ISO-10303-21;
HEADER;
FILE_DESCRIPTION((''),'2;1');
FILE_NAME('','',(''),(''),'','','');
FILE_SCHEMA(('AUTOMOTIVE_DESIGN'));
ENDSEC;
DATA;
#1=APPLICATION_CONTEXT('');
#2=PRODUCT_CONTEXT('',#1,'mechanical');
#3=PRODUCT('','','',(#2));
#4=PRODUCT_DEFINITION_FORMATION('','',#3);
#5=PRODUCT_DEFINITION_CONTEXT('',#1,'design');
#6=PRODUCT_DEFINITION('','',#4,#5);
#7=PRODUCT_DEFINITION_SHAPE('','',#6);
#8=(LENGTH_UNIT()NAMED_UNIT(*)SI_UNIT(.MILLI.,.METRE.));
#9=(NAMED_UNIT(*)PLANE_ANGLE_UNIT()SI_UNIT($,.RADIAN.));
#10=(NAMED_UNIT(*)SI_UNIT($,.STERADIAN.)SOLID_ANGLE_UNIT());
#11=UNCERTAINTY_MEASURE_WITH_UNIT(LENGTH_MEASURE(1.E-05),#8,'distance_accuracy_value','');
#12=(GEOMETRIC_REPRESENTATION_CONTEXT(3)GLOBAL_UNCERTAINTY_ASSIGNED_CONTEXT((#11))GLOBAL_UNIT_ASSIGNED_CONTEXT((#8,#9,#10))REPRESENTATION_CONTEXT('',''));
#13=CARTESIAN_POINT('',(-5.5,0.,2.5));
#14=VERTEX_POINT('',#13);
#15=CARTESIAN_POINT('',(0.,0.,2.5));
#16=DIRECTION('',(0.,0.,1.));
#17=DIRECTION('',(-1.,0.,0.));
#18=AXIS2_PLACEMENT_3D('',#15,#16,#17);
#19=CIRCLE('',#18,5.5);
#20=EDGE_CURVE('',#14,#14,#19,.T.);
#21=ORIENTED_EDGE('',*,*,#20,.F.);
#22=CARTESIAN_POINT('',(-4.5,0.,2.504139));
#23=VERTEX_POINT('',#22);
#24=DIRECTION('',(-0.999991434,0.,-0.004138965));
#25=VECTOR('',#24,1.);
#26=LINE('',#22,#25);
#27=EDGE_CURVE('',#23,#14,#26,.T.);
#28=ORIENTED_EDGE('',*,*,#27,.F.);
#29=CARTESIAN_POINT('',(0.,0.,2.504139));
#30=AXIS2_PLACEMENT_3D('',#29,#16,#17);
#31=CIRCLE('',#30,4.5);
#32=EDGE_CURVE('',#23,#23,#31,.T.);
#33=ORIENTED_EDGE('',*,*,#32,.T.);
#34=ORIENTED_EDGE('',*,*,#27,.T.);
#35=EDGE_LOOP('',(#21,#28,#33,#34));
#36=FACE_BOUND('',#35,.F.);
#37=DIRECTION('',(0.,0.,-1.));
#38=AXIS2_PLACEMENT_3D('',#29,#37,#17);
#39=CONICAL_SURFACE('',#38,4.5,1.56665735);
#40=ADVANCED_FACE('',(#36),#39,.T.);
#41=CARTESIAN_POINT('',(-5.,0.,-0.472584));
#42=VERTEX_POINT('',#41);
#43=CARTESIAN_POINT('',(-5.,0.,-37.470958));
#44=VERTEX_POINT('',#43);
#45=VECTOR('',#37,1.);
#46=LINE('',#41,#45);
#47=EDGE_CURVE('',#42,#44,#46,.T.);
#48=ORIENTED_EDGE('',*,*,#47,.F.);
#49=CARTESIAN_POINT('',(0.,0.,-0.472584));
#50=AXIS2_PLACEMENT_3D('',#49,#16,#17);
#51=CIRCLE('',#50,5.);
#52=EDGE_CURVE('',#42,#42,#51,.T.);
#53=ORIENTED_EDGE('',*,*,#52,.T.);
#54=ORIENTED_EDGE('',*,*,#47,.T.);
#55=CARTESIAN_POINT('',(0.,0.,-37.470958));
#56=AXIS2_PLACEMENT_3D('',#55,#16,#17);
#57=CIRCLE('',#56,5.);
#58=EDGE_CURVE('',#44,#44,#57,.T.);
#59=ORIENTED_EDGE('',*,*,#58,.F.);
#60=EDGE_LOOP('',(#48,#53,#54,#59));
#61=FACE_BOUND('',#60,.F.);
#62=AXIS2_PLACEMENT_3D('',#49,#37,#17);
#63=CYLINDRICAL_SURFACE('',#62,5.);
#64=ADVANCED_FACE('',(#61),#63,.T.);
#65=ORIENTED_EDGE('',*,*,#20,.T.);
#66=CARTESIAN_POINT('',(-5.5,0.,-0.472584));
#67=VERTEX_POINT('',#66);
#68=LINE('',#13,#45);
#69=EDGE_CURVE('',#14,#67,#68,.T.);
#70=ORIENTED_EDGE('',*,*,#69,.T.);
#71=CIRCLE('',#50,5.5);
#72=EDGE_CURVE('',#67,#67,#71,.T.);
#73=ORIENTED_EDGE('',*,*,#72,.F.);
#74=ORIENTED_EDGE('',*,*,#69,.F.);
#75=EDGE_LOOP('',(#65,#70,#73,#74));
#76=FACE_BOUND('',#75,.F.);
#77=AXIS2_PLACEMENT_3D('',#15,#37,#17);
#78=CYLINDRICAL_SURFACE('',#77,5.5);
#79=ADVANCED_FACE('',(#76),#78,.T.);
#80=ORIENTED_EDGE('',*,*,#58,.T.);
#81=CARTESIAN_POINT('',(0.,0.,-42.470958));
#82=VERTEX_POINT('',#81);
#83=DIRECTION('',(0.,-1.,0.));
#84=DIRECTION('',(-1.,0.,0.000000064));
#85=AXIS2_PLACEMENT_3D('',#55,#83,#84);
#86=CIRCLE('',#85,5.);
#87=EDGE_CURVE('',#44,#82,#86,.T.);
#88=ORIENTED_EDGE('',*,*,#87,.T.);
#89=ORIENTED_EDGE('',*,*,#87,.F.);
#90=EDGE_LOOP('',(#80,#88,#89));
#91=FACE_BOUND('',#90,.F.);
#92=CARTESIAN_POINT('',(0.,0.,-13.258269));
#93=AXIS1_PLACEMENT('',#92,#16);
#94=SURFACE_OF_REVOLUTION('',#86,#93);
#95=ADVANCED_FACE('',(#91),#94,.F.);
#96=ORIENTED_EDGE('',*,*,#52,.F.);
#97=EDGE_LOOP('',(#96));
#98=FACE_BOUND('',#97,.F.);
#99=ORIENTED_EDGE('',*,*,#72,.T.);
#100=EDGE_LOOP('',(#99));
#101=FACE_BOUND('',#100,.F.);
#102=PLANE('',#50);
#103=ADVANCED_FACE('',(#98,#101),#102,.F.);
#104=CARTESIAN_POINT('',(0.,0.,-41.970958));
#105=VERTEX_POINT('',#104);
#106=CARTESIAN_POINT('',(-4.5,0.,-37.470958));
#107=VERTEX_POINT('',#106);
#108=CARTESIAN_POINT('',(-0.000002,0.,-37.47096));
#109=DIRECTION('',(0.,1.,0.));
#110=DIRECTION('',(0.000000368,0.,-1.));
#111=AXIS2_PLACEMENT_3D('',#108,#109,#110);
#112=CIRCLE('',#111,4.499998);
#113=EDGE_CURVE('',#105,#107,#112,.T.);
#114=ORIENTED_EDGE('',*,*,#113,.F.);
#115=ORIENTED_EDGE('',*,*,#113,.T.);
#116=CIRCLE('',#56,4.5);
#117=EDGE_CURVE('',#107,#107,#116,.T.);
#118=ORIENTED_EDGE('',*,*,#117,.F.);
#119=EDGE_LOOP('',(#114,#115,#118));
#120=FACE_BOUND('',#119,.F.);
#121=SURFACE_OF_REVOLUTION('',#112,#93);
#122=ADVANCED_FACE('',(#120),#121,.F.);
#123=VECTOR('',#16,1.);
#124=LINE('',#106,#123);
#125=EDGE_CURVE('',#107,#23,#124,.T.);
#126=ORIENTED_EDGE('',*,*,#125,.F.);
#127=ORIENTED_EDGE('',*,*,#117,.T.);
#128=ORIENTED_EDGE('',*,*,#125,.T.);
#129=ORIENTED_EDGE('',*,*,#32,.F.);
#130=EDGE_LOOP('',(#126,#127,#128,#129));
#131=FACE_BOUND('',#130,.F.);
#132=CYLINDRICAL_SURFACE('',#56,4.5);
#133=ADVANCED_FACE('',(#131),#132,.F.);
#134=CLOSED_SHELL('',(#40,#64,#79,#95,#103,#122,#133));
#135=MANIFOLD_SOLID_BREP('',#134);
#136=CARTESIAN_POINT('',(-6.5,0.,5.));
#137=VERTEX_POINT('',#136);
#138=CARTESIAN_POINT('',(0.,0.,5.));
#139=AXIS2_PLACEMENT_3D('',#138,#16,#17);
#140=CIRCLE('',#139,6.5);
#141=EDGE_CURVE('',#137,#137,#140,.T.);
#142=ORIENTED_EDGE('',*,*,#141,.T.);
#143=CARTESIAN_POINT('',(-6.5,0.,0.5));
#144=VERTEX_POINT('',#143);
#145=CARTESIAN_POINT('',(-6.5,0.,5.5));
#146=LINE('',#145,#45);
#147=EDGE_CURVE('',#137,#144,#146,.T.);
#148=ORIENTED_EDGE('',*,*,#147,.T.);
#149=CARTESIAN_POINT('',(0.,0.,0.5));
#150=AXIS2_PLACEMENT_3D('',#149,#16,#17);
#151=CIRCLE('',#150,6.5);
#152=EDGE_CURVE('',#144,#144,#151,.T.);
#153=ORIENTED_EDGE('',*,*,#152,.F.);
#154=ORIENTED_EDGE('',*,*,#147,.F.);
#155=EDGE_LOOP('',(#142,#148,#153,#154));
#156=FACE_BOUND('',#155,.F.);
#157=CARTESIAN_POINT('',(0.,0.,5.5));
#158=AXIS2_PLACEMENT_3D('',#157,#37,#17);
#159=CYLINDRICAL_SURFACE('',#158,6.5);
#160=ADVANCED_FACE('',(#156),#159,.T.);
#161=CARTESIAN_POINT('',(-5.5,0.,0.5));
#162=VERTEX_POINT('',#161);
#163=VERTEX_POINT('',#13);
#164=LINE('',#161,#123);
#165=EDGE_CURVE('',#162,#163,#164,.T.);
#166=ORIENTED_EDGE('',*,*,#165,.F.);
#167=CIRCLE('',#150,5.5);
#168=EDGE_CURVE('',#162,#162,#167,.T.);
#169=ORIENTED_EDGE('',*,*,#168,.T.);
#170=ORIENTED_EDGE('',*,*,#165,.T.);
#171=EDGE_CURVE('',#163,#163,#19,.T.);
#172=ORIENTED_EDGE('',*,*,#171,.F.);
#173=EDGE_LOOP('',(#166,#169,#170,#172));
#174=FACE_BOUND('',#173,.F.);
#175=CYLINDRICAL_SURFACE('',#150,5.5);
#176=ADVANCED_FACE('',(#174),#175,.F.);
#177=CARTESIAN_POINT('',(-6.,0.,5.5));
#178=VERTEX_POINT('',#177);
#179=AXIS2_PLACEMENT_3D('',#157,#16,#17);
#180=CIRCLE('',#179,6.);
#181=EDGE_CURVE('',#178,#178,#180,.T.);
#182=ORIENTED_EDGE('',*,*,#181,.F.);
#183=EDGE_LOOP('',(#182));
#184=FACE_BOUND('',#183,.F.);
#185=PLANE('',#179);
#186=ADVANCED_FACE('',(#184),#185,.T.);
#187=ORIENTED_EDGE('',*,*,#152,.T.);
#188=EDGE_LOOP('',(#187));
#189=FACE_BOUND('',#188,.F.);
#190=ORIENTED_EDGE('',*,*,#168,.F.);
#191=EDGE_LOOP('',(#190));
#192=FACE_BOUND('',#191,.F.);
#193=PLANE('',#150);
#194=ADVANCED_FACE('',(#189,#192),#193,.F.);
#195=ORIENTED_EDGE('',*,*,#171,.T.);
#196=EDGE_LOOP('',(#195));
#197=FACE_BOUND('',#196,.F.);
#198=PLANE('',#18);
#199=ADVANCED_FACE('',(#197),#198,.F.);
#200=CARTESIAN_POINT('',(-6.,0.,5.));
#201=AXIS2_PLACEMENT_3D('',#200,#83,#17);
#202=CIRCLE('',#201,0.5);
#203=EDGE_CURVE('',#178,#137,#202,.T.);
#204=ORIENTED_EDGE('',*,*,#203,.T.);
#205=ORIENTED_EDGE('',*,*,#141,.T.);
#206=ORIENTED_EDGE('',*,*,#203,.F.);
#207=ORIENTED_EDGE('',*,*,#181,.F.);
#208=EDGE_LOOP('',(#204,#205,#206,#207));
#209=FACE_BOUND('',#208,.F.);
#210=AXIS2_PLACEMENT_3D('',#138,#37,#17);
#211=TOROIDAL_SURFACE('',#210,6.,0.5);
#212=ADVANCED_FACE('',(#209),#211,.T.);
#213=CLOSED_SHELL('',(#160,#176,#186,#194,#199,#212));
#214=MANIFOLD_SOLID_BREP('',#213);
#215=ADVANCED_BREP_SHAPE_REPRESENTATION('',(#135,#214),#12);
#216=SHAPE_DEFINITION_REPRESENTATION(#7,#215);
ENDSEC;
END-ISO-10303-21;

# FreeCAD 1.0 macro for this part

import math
import FreeCAD as App
import Part
import Sketcher
from FreeCAD import Vector
Q = App.Units.Quantity


def edges_at(feature, points):
    """Names of the edges that pass closest to the given points."""
    edges = feature.Shape.Edges
    near = lambda p: min(range(len(edges)), key=lambda i: edges[i].distToShape(Part.Vertex(*p))[0])
    return sorted({f"Edge{near(p) + 1}" for p in points})

doc = App.newDocument("Part")
params = doc.addObject("Spreadsheet::Sheet", "Params")
for row, (alias, value) in enumerate([
    ("sketch1_radius", "5 mm"),
    ("sketch1_radius2", "4.499998 mm"),
    ("revolution_angle", "360 deg"),
    ("sketch2_width", "1 mm"),
    ("sketch2_height", "3 mm"),
    ("sketch2_height2", "5 mm"),
    ("sketch2_width2", "6.5 mm"),
    ("revolution2_angle", "360 deg"),
    ("fillet_radius", "0.5 mm"),
], start=1):
    params.set(f"A{row}", alias)
    params.set(f"B{row}", "=" + value)
    params.setAlias(f"B{row}", alias)

body = doc.addObject("PartDesign::Body", "Body")

sketch1 = body.newObject("Sketcher::SketchObject", "Sketch")
sketch1.AttachmentSupport = (doc.getObject("XZ_Plane"), [""])
sketch1.MapMode = "FlatFace"
sketch1.addGeometry([
    Part.LineSegment(Vector(-5.5, -0.5, 0), Vector(-5, -0.5, 0)),
    Part.LineSegment(Vector(-5, -0.5, 0), Vector(-5, -37.5, 0)),
    Part.ArcOfCircle(Part.Circle(Vector(0, -37.5, 0), Vector(0, 0, 1), 5), math.radians(180), math.radians(270)),
    Part.LineSegment(Vector(0, -42.5, 0), Vector(0, -42, 0)),
    Part.ArcOfCircle(Part.Circle(Vector(0, -37.5, 0), Vector(0, 0, 1), 4.5), math.radians(180), math.radians(270)),
    Part.LineSegment(Vector(-4.5, -37.5, 0), Vector(-4.5, 2.5, 0)),
    Part.LineSegment(Vector(-4.5, 2.5, 0), Vector(-5.5, 2.5, 0)),
    Part.LineSegment(Vector(-5.5, 2.5, 0), Vector(-5.5, -0.5, 0)),
], False)
sketch1.addConstraint([
    Sketcher.Constraint("Coincident", 0, 2, 1, 1),
    Sketcher.Constraint("Tangent", 1, 2, 2, 1),
    Sketcher.Constraint("Coincident", 2, 2, 3, 1),
    Sketcher.Constraint("Coincident", 3, 2, 4, 2),
    Sketcher.Constraint("Tangent", 4, 1, 5, 1),
    Sketcher.Constraint("Coincident", 5, 2, 6, 1),
    Sketcher.Constraint("Coincident", 6, 2, 7, 1),
    Sketcher.Constraint("Coincident", 7, 2, 0, 1),
    Sketcher.Constraint("Horizontal", 0),
    Sketcher.Constraint("Vertical", 1),
    Sketcher.Constraint("Vertical", 3),
    Sketcher.Constraint("Vertical", 5),
    Sketcher.Constraint("Vertical", 7),
    Sketcher.Constraint("Coincident", 4, 3, 2, 3),
    Sketcher.Constraint("PointOnObject", 2, 3, -2),
    Sketcher.Constraint("PointOnObject", 2, 2, -2),
    Sketcher.Constraint("Equal", 0, 3),
    Sketcher.Constraint("Radius", 2, Q("5 mm")),
    Sketcher.Constraint("Radius", 4, Q("4.499998 mm")),
    Sketcher.Constraint("DistanceY", -1, 1, 6, 2, Q("2.5 mm")),
    Sketcher.Constraint("DistanceY", 4, 3, 5, 2, Q("39.975099 mm")),
    Sketcher.Constraint("DistanceY", 1, 2, 1, 1, Q("36.998374 mm")),
    Sketcher.Constraint("DistanceY", 7, 2, 7, 1, Q("2.972584 mm")),
])
sketch1.setExpression("Constraints[17]", "Params.sketch1_radius")
sketch1.setExpression("Constraints[18]", "Params.sketch1_radius2")
revolution = body.newObject("PartDesign::Revolution", "Revolution")
revolution.Profile = sketch1
revolution.ReferenceAxis = (sketch1, ["V_Axis"])
revolution.setExpression("Angle", "Params.revolution_angle")
body2 = doc.addObject("PartDesign::Body", "Body001")

sketch2 = body2.newObject("Sketcher::SketchObject", "Sketch001")
sketch2.AttachmentSupport = (doc.getObject("XZ_Plane001"), [""])
sketch2.MapMode = "FlatFace"
sketch2.addGeometry([
    Part.LineSegment(Vector(0, 2.5, 0), Vector(0, 5.5, 0)),
    Part.LineSegment(Vector(0, 5.5, 0), Vector(-6.5, 5.5, 0)),
    Part.LineSegment(Vector(-6.5, 5.5, 0), Vector(-6.5, 0.5, 0)),
    Part.LineSegment(Vector(-6.5, 0.5, 0), Vector(-5.5, 0.5, 0)),
    Part.LineSegment(Vector(-5.5, 0.5, 0), Vector(-5.5, 2.5, 0)),
    Part.LineSegment(Vector(-5.5, 2.5, 0), Vector(0, 2.5, 0)),
], False)
sketch2.addConstraint([
    Sketcher.Constraint("Coincident", 0, 2, 1, 1),
    Sketcher.Constraint("Coincident", 1, 2, 2, 1),
    Sketcher.Constraint("Coincident", 2, 2, 3, 1),
    Sketcher.Constraint("Coincident", 3, 2, 4, 1),
    Sketcher.Constraint("Coincident", 4, 2, 5, 1),
    Sketcher.Constraint("Coincident", 5, 2, 0, 1),
    Sketcher.Constraint("Vertical", 0),
    Sketcher.Constraint("Horizontal", 1),
    Sketcher.Constraint("Vertical", 2),
    Sketcher.Constraint("Horizontal", 3),
    Sketcher.Constraint("Vertical", 4),
    Sketcher.Constraint("Horizontal", 5),
    Sketcher.Constraint("PointOnObject", 0, 2, -2),
    Sketcher.Constraint("DistanceX", 3, 1, 3, 2, Q("1 mm")),
    Sketcher.Constraint("DistanceY", 0, 1, 0, 2, Q("3 mm")),
    Sketcher.Constraint("DistanceY", 2, 2, 2, 1, Q("5 mm")),
    Sketcher.Constraint("DistanceX", 1, 2, 1, 1, Q("6.5 mm")),
    Sketcher.Constraint("DistanceY", -1, 1, 0, 2, Q("5.5 mm")),
])
sketch2.setExpression("Constraints[13]", "Params.sketch2_width")
sketch2.setExpression("Constraints[14]", "Params.sketch2_height")
sketch2.setExpression("Constraints[15]", "Params.sketch2_height2")
sketch2.setExpression("Constraints[16]", "Params.sketch2_width2")
revolution2 = body2.newObject("PartDesign::Revolution", "Revolution001")
revolution2.Profile = sketch2
revolution2.ReferenceAxis = (sketch2, ["V_Axis"])
revolution2.setExpression("Angle", "Params.revolution2_angle")
doc.recompute()

fillet = body2.newObject("PartDesign::Fillet", "Fillet")
fillet.Base = (revolution2, edges_at(revolution2, [(6.5, 0, 5.5)]))
fillet.setExpression("Radius", "Params.fillet_radius")

doc.recompute()
